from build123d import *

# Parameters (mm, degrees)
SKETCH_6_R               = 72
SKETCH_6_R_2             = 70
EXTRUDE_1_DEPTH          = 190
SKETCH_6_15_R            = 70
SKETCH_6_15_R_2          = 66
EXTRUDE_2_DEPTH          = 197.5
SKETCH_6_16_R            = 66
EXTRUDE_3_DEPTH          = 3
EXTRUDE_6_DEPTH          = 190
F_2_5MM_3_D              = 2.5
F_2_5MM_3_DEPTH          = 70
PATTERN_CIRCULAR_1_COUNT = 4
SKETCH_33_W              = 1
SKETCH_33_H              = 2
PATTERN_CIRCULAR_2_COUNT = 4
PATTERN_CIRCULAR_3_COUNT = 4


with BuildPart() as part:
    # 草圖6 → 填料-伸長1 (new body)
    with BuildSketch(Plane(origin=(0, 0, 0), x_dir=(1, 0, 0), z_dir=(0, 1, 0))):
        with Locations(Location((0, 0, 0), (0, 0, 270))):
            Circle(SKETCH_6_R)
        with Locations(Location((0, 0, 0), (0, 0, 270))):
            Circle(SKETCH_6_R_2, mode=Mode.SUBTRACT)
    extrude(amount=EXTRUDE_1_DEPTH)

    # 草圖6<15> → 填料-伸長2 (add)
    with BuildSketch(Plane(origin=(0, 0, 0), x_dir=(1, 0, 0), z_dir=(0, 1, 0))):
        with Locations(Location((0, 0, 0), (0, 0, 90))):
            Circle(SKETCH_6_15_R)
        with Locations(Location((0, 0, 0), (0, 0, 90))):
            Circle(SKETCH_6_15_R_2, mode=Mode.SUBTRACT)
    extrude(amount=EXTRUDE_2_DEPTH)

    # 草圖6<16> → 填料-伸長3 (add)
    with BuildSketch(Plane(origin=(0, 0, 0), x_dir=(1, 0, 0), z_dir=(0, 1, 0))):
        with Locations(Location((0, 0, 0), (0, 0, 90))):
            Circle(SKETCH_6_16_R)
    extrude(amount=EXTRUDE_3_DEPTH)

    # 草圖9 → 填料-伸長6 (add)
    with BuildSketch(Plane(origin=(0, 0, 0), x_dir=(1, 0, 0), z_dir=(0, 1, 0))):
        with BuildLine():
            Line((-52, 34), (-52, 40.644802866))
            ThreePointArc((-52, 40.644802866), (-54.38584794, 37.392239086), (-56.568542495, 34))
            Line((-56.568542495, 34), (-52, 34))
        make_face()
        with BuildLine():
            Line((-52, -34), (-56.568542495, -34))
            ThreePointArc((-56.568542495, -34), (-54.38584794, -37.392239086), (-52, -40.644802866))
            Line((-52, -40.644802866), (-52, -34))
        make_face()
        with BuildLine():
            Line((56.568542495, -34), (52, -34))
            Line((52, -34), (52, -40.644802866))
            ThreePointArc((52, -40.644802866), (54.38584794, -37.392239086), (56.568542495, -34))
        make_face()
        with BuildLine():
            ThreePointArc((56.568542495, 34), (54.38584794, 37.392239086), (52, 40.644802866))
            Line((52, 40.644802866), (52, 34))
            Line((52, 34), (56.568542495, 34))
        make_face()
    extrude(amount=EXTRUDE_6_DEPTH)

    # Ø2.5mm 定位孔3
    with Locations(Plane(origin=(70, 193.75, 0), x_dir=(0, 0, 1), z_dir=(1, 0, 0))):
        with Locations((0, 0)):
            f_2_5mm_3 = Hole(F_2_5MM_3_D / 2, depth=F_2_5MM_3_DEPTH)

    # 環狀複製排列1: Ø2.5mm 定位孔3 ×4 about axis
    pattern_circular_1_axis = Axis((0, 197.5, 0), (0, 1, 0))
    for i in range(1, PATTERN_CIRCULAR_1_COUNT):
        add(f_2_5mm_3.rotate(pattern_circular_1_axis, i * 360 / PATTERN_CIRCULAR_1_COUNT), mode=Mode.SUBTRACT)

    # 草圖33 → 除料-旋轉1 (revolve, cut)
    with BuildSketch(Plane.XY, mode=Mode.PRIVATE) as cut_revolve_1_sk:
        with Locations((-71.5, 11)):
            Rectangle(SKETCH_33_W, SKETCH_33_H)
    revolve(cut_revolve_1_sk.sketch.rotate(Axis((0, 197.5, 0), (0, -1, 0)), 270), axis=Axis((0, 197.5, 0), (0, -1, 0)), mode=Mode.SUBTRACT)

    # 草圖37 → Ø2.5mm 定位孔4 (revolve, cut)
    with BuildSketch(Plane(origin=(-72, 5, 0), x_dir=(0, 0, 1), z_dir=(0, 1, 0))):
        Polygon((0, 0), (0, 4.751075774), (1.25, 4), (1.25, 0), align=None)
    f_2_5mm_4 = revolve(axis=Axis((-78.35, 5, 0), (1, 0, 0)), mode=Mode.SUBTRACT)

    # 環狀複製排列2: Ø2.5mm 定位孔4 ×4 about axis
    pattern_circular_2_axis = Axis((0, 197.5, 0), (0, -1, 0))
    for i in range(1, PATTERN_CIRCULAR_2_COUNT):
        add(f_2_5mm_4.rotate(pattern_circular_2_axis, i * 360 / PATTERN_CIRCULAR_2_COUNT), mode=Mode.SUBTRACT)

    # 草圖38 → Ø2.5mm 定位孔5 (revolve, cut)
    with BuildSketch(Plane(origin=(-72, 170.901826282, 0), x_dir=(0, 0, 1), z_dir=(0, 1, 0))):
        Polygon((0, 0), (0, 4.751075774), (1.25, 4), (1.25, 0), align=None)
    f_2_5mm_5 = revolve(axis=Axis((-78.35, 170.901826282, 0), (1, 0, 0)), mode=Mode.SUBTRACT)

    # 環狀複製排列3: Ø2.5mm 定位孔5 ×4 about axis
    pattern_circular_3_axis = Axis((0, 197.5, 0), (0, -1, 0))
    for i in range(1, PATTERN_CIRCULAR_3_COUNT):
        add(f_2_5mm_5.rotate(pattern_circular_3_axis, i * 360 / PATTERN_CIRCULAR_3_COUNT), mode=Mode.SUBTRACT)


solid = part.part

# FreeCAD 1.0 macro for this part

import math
import FreeCAD as App
import Part
import Sketcher

V = App.Vector
Q = App.Units.Quantity

doc = App.newDocument("Part")
body = doc.addObject("PartDesign::Body", "Body")

# Sketch on XZ plane
sketch1 = doc.addObject("Sketcher::SketchObject", "Sketch")
body.addObject(sketch1)
sketch1.AttachmentSupport = (doc.XZ_Plane, [""])
sketch1.MapMode = "FlatFace"
sketch1.addGeometry([
    Part.Circle(V(0, 0, 0), V(0, 0, 1), 72),
    Part.Circle(V(0, 0, 0), V(0, 0, 1), 70),
], False)
sketch1.addConstraint([
    Sketcher.Constraint("Coincident", 0, 3, -1, 1),
    Sketcher.Constraint("Coincident", 1, 3, -1, 1),
    Sketcher.Constraint("Diameter", 0, 144.0),
    Sketcher.Constraint("Diameter", 1, 140.0),
])
pad1 = doc.addObject("PartDesign::Pad", "Pad")
body.addObject(pad1)
pad1.Profile = sketch1
pad1.Length = 190
pad1.Reversed = True

# Sketch on XZ plane
sketch2 = doc.addObject("Sketcher::SketchObject", "Sketch001")
body.addObject(sketch2)
sketch2.AttachmentSupport = (doc.XZ_Plane, [""])
sketch2.MapMode = "FlatFace"
sketch2.addGeometry([
    Part.Circle(V(0, 0, 0), V(0, 0, 1), 70),
    Part.Circle(V(0, 0, 0), V(0, 0, 1), 66),
], False)
sketch2.addConstraint([
    Sketcher.Constraint("Coincident", 0, 3, -1, 1),
    Sketcher.Constraint("Coincident", 1, 3, -1, 1),
    Sketcher.Constraint("Diameter", 0, 140.0),
    Sketcher.Constraint("Diameter", 1, 132.0),
])
pad2 = doc.addObject("PartDesign::Pad", "Pad001")
body.addObject(pad2)
pad2.Profile = sketch2
pad2.Length = 197.5
pad2.Reversed = True

# Sketch on XZ plane
sketch3 = doc.addObject("Sketcher::SketchObject", "Sketch002")
body.addObject(sketch3)
sketch3.AttachmentSupport = (doc.XZ_Plane, [""])
sketch3.MapMode = "FlatFace"
sketch3.addGeometry(Part.Circle(V(0, 0, 0), V(0, 0, 1), 66), False)
sketch3.addConstraint([
    Sketcher.Constraint("Coincident", 0, 3, -1, 1),
    Sketcher.Constraint("Diameter", 0, 132.0),
])
pad3 = doc.addObject("PartDesign::Pad", "Pad002")
body.addObject(pad3)
pad3.Profile = sketch3
pad3.Length = 3
pad3.Reversed = True

# Sketch on XZ plane
sketch4 = doc.addObject("Sketcher::SketchObject", "Sketch003")
body.addObject(sketch4)
sketch4.AttachmentSupport = (doc.XZ_Plane, [""])
sketch4.MapMode = "FlatFace"
sketch4.addGeometry([
    Part.LineSegment(V(-52, -34, 0), V(-52, -40.6, 0)),  # 0
    Part.ArcOfCircle(Part.Circle(V(0, 0, 0), V(0, 0, 1), 66), math.radians(-148.99), math.radians(-141.99)),  # 1
    Part.LineSegment(V(-56.6, -34, 0), V(-52, -34, 0)),  # 2
    Part.LineSegment(V(-52, 34, 0), V(-56.6, 34, 0)),  # 3
    Part.ArcOfCircle(Part.Circle(V(0, 0, 0), V(0, 0, 1), 66), math.radians(141.99), math.radians(148.99)),  # 4
    Part.LineSegment(V(-52, 40.6, 0), V(-52, 34, 0)),  # 5
    Part.LineSegment(V(56.6, 34, 0), V(52, 34, 0)),  # 6
    Part.LineSegment(V(52, 34, 0), V(52, 40.6, 0)),  # 7
    Part.ArcOfCircle(Part.Circle(V(0, 0, 0), V(0, 0, 1), 66), math.radians(31.01), math.radians(38.01)),  # 8
    Part.ArcOfCircle(Part.Circle(V(0, 0, 0), V(0, 0, 1), 66), math.radians(-38.01), math.radians(-31.01)),  # 9
    Part.LineSegment(V(52, -40.6, 0), V(52, -34, 0)),  # 10
    Part.LineSegment(V(52, -34, 0), V(56.6, -34, 0)),  # 11
], False)
sketch4.addConstraint([
    Sketcher.Constraint("Coincident", 0, 2, 1, 2),
    Sketcher.Constraint("Coincident", 1, 1, 2, 1),
    Sketcher.Constraint("Coincident", 2, 2, 0, 1),
    Sketcher.Constraint("Coincident", 3, 2, 4, 2),
    Sketcher.Constraint("Coincident", 4, 1, 5, 1),
    Sketcher.Constraint("Coincident", 5, 2, 3, 1),
    Sketcher.Constraint("Coincident", 6, 2, 7, 1),
    Sketcher.Constraint("Coincident", 7, 2, 8, 2),
    Sketcher.Constraint("Coincident", 8, 1, 6, 1),
    Sketcher.Constraint("Coincident", 9, 1, 10, 1),
    Sketcher.Constraint("Coincident", 10, 2, 11, 1),
    Sketcher.Constraint("Coincident", 11, 2, 9, 2),
    Sketcher.Constraint("Vertical", 0),
    Sketcher.Constraint("Horizontal", 2),
    Sketcher.Constraint("Horizontal", 3),
    Sketcher.Constraint("Vertical", 5),
    Sketcher.Constraint("Horizontal", 6),
    Sketcher.Constraint("Vertical", 7),
    Sketcher.Constraint("Vertical", 10),
    Sketcher.Constraint("Horizontal", 11),
    Sketcher.Constraint("Coincident", 1, 3, -1, 1),
    Sketcher.Constraint("Coincident", 4, 3, -1, 1),
    Sketcher.Constraint("Coincident", 8, 3, -1, 1),
    Sketcher.Constraint("Coincident", 9, 3, -1, 1),
    Sketcher.Constraint("Equal", 1, 4),
    Sketcher.Constraint("Equal", 4, 8),
    Sketcher.Constraint("Equal", 8, 9),
    Sketcher.Constraint("Symmetric", 2, 2, 6, 2, -1, 1),
    Sketcher.Constraint("Symmetric", 5, 2, 10, 2, -1, 1),
    Sketcher.Constraint("Symmetric", 5, 2, 6, 2, -2),
    Sketcher.Constraint("Radius", 1, 66.0),
    Sketcher.Constraint("DistanceX", 0, 2, -1, 1, 52.0),
    Sketcher.Constraint("DistanceY", 1, 1, -1, 1, 34.0),
])
pad4 = doc.addObject("PartDesign::Pad", "Pad003")
body.addObject(pad4)
pad4.Profile = sketch4
pad4.Length = 190
pad4.Reversed = True

# Sketch on YZ plane
sketch5 = doc.addObject("Sketcher::SketchObject", "Sketch004")
body.addObject(sketch5)
sketch5.AttachmentSupport = (doc.YZ_Plane, [""])
sketch5.MapMode = "FlatFace"
sketch5.AttachmentOffset = App.Placement(V(0, 0, 70), App.Rotation())
sketch5.addGeometry(Part.Circle(V(193.8, 0, 0), V(0, 0, 1), 1.2), False)
sketch5.addConstraint([
    Sketcher.Constraint("PointOnObject", 0, 3, -1),
    Sketcher.Constraint("Diameter", 0, 2.5),
    Sketcher.Constraint("DistanceX", -1, 1, 0, 3, 193.75),
])
doc.recompute()
hole = doc.addObject("PartDesign::Hole", "Hole")
body.addObject(hole)
hole.Profile = sketch5
hole.ThreadType = "None"
hole.Diameter = 2.5
hole.DepthType = "Dimension"
hole.Depth = 70
hole.DrillPoint = "Flat"
doc.recompute()

polarpattern = doc.addObject("PartDesign::PolarPattern", "PolarPattern")
body.addObject(polarpattern)
polarpattern.Originals = [hole]
polarpattern.Axis = (doc.Y_Axis, [""])
polarpattern.Angle = 360
polarpattern.Occurrences = 4
body.Tip = polarpattern

# Sketch on XY plane
sketch6 = doc.addObject("Sketcher::SketchObject", "Sketch005")
body.addObject(sketch6)
sketch6.AttachmentSupport = (doc.XY_Plane, [""])
sketch6.MapMode = "FlatFace"
sketch6.addGeometry([
    Part.LineSegment(V(-72, 12, 0), V(-72, 10, 0)),
    Part.LineSegment(V(-72, 10, 0), V(-71, 10, 0)),
    Part.LineSegment(V(-71, 10, 0), V(-71, 12, 0)),
    Part.LineSegment(V(-71, 12, 0), V(-72, 12, 0)),
], False)
sketch6.addConstraint([
    Sketcher.Constraint("Coincident", 0, 2, 1, 1),
    Sketcher.Constraint("Coincident", 1, 2, 2, 1),
    Sketcher.Constraint("Coincident", 2, 2, 3, 1),
    Sketcher.Constraint("Coincident", 3, 2, 0, 1),
    Sketcher.Constraint("Vertical", 0),
    Sketcher.Constraint("Horizontal", 1),
    Sketcher.Constraint("Vertical", 2),
    Sketcher.Constraint("Horizontal", 3),
    Sketcher.Constraint("DistanceX", 1, 1, 1, 2, 1.0),
    Sketcher.Constraint("DistanceY", 0, 2, 0, 1, 2.0),
    Sketcher.Constraint("DistanceX", 0, 2, -1, 1, 72.0),
    Sketcher.Constraint("DistanceY", -1, 1, 0, 2, 10.0),
])
groove = doc.addObject("PartDesign::Groove", "Groove")
body.addObject(groove)
groove.Profile = sketch6
groove.ReferenceAxis = (sketch6, ["V_Axis"])
groove.Angle = 360

# Sketch on XZ plane
sketch7 = doc.addObject("Sketcher::SketchObject", "Sketch006")
body.addObject(sketch7)
sketch7.AttachmentSupport = (doc.XZ_Plane, [""])
sketch7.MapMode = "FlatFace"
sketch7.AttachmentOffset = App.Placement(V(0, 0, -5), App.Rotation())
sketch7.addGeometry([
    Part.LineSegment(V(-67.2, 0, 0), V(-72, 0, 0)),
    Part.LineSegment(V(-72, 0, 0), V(-72, 1.2, 0)),
    Part.LineSegment(V(-72, 1.2, 0), V(-68, 1.2, 0)),
    Part.LineSegment(V(-68, 1.2, 0), V(-67.2, 0, 0)),
], False)
sketch7.addConstraint([
    Sketcher.Constraint("Coincident", 0, 2, 1, 1),
    Sketcher.Constraint("Coincident", 1, 2, 2, 1),
    Sketcher.Constraint("Coincident", 2, 2, 3, 1),
    Sketcher.Constraint("Coincident", 3, 2, 0, 1),
    Sketcher.Constraint("Horizontal", 0),
    Sketcher.Constraint("Vertical", 1),
    Sketcher.Constraint("Horizontal", 2),
    Sketcher.Constraint("PointOnObject", 0, 2, -1),
    Sketcher.Constraint("DistanceX", 2, 1, 2, 2, 4.0),
    Sketcher.Constraint("Angle", 3, Q("-59 deg")),
    Sketcher.Constraint("DistanceX", 0, 2, -1, 1, 72.0),
    Sketcher.Constraint("DistanceY", 1, 1, 1, 2, 1.25),
])
groove2 = doc.addObject("PartDesign::Groove", "Groove001")
body.addObject(groove2)
groove2.Profile = sketch7
groove2.ReferenceAxis = (sketch7, ["H_Axis"])
groove2.Angle = 360
doc.recompute()

polarpattern2 = doc.addObject("PartDesign::PolarPattern", "PolarPattern001")
body.addObject(polarpattern2)
polarpattern2.Originals = [groove2]
polarpattern2.Axis = (doc.Y_Axis, [""])
polarpattern2.Angle = 360
polarpattern2.Occurrences = 4
body.Tip = polarpattern2

# Sketch on XZ plane
sketch8 = doc.addObject("Sketcher::SketchObject", "Sketch007")
body.addObject(sketch8)
sketch8.AttachmentSupport = (doc.XZ_Plane, [""])
sketch8.MapMode = "FlatFace"
sketch8.AttachmentOffset = App.Placement(V(0, 0, -170.901826), App.Rotation())
sketch8.addGeometry([
    Part.LineSegment(V(-67.2, 0, 0), V(-72, 0, 0)),
    Part.LineSegment(V(-72, 0, 0), V(-72, 1.2, 0)),
    Part.LineSegment(V(-72, 1.2, 0), V(-68, 1.2, 0)),
    Part.LineSegment(V(-68, 1.2, 0), V(-67.2, 0, 0)),
], False)
sketch8.addConstraint([
    Sketcher.Constraint("Coincident", 0, 2, 1, 1),
    Sketcher.Constraint("Coincident", 1, 2, 2, 1),
    Sketcher.Constraint("Coincident", 2, 2, 3, 1),
    Sketcher.Constraint("Coincident", 3, 2, 0, 1),
    Sketcher.Constraint("Horizontal", 0),
    Sketcher.Constraint("Vertical", 1),
    Sketcher.Constraint("Horizontal", 2),
    Sketcher.Constraint("PointOnObject", 0, 2, -1),
    Sketcher.Constraint("DistanceX", 2, 1, 2, 2, 4.0),
    Sketcher.Constraint("Angle", 3, Q("-59 deg")),
    Sketcher.Constraint("DistanceX", 0, 2, -1, 1, 72.0),
    Sketcher.Constraint("DistanceY", 1, 1, 1, 2, 1.25),
])
groove3 = doc.addObject("PartDesign::Groove", "Groove002")
body.addObject(groove3)
groove3.Profile = sketch8
groove3.ReferenceAxis = (sketch8, ["H_Axis"])
groove3.Angle = 360
doc.recompute()

polarpattern3 = doc.addObject("PartDesign::PolarPattern", "PolarPattern002")
body.addObject(polarpattern3)
polarpattern3.Originals = [groove3]
polarpattern3.Axis = (doc.Y_Axis, [""])
polarpattern3.Angle = 360
polarpattern3.Occurrences = 4
body.Tip = polarpattern3

doc.recompute()
